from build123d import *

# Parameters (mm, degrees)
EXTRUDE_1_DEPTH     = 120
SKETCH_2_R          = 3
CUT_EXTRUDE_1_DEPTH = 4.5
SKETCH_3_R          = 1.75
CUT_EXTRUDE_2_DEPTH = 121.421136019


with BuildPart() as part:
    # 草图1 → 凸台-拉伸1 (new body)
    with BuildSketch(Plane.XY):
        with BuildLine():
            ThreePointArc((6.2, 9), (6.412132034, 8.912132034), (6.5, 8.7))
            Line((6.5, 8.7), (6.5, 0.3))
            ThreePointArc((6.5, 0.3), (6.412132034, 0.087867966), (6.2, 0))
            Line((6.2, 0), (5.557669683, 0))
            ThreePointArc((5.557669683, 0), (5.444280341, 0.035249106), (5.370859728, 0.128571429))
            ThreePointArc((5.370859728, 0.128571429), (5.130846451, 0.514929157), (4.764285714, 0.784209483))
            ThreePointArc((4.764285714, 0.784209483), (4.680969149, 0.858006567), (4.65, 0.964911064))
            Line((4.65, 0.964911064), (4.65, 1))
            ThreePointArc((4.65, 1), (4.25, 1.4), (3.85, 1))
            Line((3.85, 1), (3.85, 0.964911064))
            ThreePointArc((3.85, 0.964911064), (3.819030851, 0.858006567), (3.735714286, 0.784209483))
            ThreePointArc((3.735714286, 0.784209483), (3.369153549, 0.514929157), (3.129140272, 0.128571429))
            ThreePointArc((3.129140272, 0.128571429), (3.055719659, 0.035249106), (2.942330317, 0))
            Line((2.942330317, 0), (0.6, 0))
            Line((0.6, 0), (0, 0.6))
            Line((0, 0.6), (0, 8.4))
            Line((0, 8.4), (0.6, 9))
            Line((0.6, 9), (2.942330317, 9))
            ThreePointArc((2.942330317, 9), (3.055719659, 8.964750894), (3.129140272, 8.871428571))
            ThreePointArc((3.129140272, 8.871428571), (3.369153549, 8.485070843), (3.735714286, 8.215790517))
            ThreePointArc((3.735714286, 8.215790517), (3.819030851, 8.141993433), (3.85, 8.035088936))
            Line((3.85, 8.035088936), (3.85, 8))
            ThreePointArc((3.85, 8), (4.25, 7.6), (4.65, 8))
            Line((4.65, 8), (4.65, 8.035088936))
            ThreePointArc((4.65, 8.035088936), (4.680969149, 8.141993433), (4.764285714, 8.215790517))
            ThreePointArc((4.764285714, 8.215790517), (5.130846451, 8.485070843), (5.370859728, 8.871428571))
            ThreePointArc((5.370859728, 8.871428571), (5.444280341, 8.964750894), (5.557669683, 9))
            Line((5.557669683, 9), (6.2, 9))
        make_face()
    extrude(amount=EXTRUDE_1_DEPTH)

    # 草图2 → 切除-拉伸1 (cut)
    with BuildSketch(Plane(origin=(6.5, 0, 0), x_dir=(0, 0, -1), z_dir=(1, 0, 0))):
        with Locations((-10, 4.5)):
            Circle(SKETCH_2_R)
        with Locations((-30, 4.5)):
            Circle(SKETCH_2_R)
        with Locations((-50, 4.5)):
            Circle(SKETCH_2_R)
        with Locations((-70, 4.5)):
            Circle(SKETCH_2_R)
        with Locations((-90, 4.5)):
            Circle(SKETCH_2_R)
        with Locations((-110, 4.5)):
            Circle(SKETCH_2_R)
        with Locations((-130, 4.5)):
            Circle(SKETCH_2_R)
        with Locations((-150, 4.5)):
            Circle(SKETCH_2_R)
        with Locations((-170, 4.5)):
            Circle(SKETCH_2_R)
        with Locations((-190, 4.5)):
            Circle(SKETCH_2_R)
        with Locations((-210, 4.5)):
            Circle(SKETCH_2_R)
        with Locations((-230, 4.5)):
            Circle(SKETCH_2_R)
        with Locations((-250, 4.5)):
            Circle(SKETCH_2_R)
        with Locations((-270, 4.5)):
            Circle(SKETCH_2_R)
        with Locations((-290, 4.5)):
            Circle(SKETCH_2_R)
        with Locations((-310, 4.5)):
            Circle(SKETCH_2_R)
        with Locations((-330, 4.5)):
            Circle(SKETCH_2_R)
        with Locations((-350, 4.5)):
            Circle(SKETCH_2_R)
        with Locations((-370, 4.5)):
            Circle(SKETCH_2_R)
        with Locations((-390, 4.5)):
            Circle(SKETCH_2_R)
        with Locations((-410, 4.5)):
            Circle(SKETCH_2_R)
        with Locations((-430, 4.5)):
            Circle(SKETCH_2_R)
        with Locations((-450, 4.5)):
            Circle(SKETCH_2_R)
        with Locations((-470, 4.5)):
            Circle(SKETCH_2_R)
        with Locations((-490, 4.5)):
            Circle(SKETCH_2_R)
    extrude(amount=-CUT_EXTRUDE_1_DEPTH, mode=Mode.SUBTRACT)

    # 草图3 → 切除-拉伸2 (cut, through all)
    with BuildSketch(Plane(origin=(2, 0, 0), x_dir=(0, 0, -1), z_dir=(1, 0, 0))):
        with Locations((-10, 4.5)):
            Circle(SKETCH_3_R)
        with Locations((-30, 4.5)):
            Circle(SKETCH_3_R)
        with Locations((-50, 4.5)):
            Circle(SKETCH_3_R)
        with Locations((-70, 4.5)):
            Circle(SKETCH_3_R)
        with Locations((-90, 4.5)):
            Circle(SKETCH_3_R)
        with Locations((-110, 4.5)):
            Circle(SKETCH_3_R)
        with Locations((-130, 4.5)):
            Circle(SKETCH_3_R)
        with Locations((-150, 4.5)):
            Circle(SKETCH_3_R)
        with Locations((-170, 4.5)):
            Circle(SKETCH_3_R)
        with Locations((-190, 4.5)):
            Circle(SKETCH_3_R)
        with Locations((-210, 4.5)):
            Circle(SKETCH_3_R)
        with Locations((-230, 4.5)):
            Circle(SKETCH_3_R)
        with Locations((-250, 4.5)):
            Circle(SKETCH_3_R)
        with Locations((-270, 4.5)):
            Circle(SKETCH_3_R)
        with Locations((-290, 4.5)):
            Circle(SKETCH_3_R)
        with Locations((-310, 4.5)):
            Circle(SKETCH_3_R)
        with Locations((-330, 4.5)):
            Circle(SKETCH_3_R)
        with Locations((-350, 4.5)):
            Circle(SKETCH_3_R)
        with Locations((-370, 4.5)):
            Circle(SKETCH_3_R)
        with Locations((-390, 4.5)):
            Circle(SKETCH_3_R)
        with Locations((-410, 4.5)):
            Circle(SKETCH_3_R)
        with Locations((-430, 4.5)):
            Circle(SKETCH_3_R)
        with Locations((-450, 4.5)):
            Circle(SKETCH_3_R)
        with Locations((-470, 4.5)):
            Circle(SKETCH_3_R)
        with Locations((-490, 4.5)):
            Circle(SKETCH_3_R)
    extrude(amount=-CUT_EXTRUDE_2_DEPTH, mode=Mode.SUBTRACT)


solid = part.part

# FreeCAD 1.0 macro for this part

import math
import FreeCAD as App
import Part
import Sketcher
from FreeCAD import Vector

doc = App.newDocument("Part")
body = doc.addObject("PartDesign::Body", "Body")

sketch1 = body.newObject("Sketcher::SketchObject", "Sketch")
sketch1.AttachmentSupport = (doc.getObject("XY_Plane"), [""])
sketch1.MapMode = "FlatFace"
sketch1.addGeometry([
    Part.ArcOfCircle(Part.Circle(Vector(6.2, 8.7, 0), Vector(0, 0, 1), 0.3), math.radians(0), math.radians(90)),
    Part.LineSegment(Vector(6.2, 9, 0), Vector(5.558, 9, 0)),
    Part.ArcOfCircle(Part.Circle(Vector(5.558, 8.8, 0), Vector(0, 0, 1), 0.2), math.radians(90), math.radians(159)),
    Part.ArcOfCircle(Part.Circle(Vector(4.25, 9.3, 0), Vector(0, 0, 1), 1.2), math.radians(-65), math.radians(-21)),
    Part.ArcOfCircle(Part.Circle(Vector(4.85, 8.035, 0), Vector(0, 0, 1), 0.2), math.radians(115), math.radians(180)),
    Part.LineSegment(Vector(4.65, 8.035, 0), Vector(4.65, 8, 0)),
    Part.ArcOfCircle(Part.Circle(Vector(4.25, 8, 0), Vector(0, 0, 1), 0.4), math.radians(180), math.radians(360)),
    Part.LineSegment(Vector(3.85, 8, 0), Vector(3.85, 8.035, 0)),
    Part.ArcOfCircle(Part.Circle(Vector(3.65, 8.035, 0), Vector(0, 0, 1), 0.2), math.radians(0), math.radians(65)),
    Part.ArcOfCircle(Part.Circle(Vector(4.25, 9.3, 0), Vector(0, 0, 1), 1.2), math.radians(-159), math.radians(-115)),
    Part.ArcOfCircle(Part.Circle(Vector(2.942, 8.8, 0), Vector(0, 0, 1), 0.2), math.radians(21), math.radians(90)),
    Part.LineSegment(Vector(2.942, 9, 0), Vector(0.6, 9, 0)),
    Part.LineSegment(Vector(0.6, 9, 0), Vector(0, 8.4, 0)),
    Part.LineSegment(Vector(0, 8.4, 0), Vector(0, 0.6, 0)),
    Part.LineSegment(Vector(0, 0.6, 0), Vector(0.6, 0, 0)),
    Part.LineSegment(Vector(0.6, 0, 0), Vector(2.942, 0, 0)),
    Part.ArcOfCircle(Part.Circle(Vector(2.942, 0.2, 0), Vector(0, 0, 1), 0.2), math.radians(-90), math.radians(-21)),
    Part.ArcOfCircle(Part.Circle(Vector(4.25, -0.3, 0), Vector(0, 0, 1), 1.2), math.radians(115), math.radians(159)),
    Part.ArcOfCircle(Part.Circle(Vector(3.65, 0.965, 0), Vector(0, 0, 1), 0.2), math.radians(-65), math.radians(0)),
    Part.LineSegment(Vector(3.85, 0.965, 0), Vector(3.85, 1, 0)),
    Part.ArcOfCircle(Part.Circle(Vector(4.25, 1, 0), Vector(0, 0, 1), 0.4), math.radians(0), math.radians(180)),
    Part.LineSegment(Vector(4.65, 1, 0), Vector(4.65, 0.965, 0)),
    Part.ArcOfCircle(Part.Circle(Vector(4.85, 0.965, 0), Vector(0, 0, 1), 0.2), math.radians(180), math.radians(245)),
    Part.ArcOfCircle(Part.Circle(Vector(4.25, -0.3, 0), Vector(0, 0, 1), 1.2), math.radians(21), math.radians(65)),
    Part.ArcOfCircle(Part.Circle(Vector(5.558, 0.2, 0), Vector(0, 0, 1), 0.2), math.radians(-159), math.radians(-90)),
    Part.LineSegment(Vector(5.558, 0, 0), Vector(6.2, 0, 0)),
    Part.ArcOfCircle(Part.Circle(Vector(6.2, 0.3, 0), Vector(0, 0, 1), 0.3), math.radians(-90), math.radians(0)),
    Part.LineSegment(Vector(6.5, 0.3, 0), Vector(6.5, 8.7, 0)),
], False)
sketch1.addConstraint([
    Sketcher.Constraint("Tangent", 0, 2, 1, 1),
    Sketcher.Constraint("Tangent", 1, 2, 2, 1),
    Sketcher.Constraint("Tangent", 2, 2, 3, 2),
    Sketcher.Constraint("Tangent", 3, 1, 4, 1),
    Sketcher.Constraint("Tangent", 4, 2, 5, 1),
    Sketcher.Constraint("Tangent", 5, 2, 6, 2),
    Sketcher.Constraint("Tangent", 6, 1, 7, 1),
    Sketcher.Constraint("Tangent", 7, 2, 8, 1),
    Sketcher.Constraint("Tangent", 8, 2, 9, 2),
    Sketcher.Constraint("Tangent", 9, 1, 10, 1),
    Sketcher.Constraint("Tangent", 10, 2, 11, 1),
    Sketcher.Constraint("Coincident", 11, 2, 12, 1),
    Sketcher.Constraint("Coincident", 12, 2, 13, 1),
    Sketcher.Constraint("Coincident", 13, 2, 14, 1),
    Sketcher.Constraint("Coincident", 14, 2, 15, 1),
    Sketcher.Constraint("Tangent", 15, 2, 16, 1),
    Sketcher.Constraint("Tangent", 16, 2, 17, 2),
    Sketcher.Constraint("Tangent", 17, 1, 18, 1),
    Sketcher.Constraint("Tangent", 18, 2, 19, 1),
    Sketcher.Constraint("Tangent", 19, 2, 20, 2),
    Sketcher.Constraint("Tangent", 20, 1, 21, 1),
    Sketcher.Constraint("Tangent", 21, 2, 22, 1),
    Sketcher.Constraint("Tangent", 22, 2, 23, 2),
    Sketcher.Constraint("Tangent", 23, 1, 24, 1),
    Sketcher.Constraint("Tangent", 24, 2, 25, 1),
    Sketcher.Constraint("Tangent", 25, 2, 26, 1),
    Sketcher.Constraint("Tangent", 26, 2, 27, 1),
    Sketcher.Constraint("Tangent", 27, 2, 0, 1),
    Sketcher.Constraint("Horizontal", 1),
    Sketcher.Constraint("Vertical", 5),
    Sketcher.Constraint("Vertical", 7),
    Sketcher.Constraint("Horizontal", 11),
    Sketcher.Constraint("Vertical", 13),
    Sketcher.Constraint("Horizontal", 15),
    Sketcher.Constraint("Vertical", 19),
    Sketcher.Constraint("Vertical", 21),
    Sketcher.Constraint("Horizontal", 25),
    Sketcher.Constraint("Vertical", 27),
    Sketcher.Constraint("Coincident", 9, 3, 3, 3),
    Sketcher.Constraint("Coincident", 23, 3, 17, 3),
    Sketcher.Constraint("Equal", 2, 4),
    Sketcher.Constraint("Equal", 4, 8),
    Sketcher.Constraint("Equal", 3, 9),
    Sketcher.Constraint("Equal", 8, 10),
    Sketcher.Constraint("Equal", 10, 16),
    Sketcher.Constraint("Equal", 9, 17),
    Sketcher.Constraint("Equal", 16, 18),
    Sketcher.Constraint("Equal", 6, 20),
    Sketcher.Constraint("Equal", 18, 22),
    Sketcher.Constraint("Equal", 17, 23),
    Sketcher.Constraint("Equal", 22, 24),
    Sketcher.Constraint("Equal", 0, 26),
    Sketcher.Constraint("PointOnObject", 12, 2, -2),
    Sketcher.Constraint("PointOnObject", 14, 2, -1),
    Sketcher.Constraint("PointOnObject", 24, 2, -1),
    Sketcher.Constraint("Perpendicular", 12, 14),
    Sketcher.Constraint("Horizontal", 4, 3, 8, 3),
    Sketcher.Constraint("Horizontal", 2, 3, 10, 3),
    Sketcher.Constraint("Horizontal", 18, 3, 22, 3),
    Sketcher.Constraint("Vertical", 10, 3, 16, 3),
    Sketcher.Constraint("Vertical", 9, 3, 17, 3),
    Sketcher.Constraint("Vertical", 11, 2, 14, 2),
    Sketcher.Constraint("Equal", 7, 19),
    Sketcher.Constraint("Equal", 12, 14),
    Sketcher.Constraint("Radius", 0, 0.3),
    Sketcher.Constraint("Radius", 2, 0.2),
    Sketcher.Constraint("Radius", 3, 1.2),
    Sketcher.Constraint("Radius", 6, 0.4),
    Sketcher.Constraint("DistanceY", 13, 2, 13, 1, 7.8),
    Sketcher.Constraint("DistanceY", 27, 1, 27, 2, 8.4),
    Sketcher.Constraint("DistanceY", -1, 1, 6, 3, 8.0),
    Sketcher.Constraint("DistanceX", -1, 1, 0, 3, 6.2),
    Sketcher.Constraint("DistanceY", -1, 1, 3, 3, 9.3),
    Sketcher.Constraint("DistanceX", -1, 1, 3, 3, 4.25),
])
pad1 = body.newObject("PartDesign::Pad", "Pad")
pad1.Profile = sketch1
pad1.Length = 120

sketch2 = body.newObject("Sketcher::SketchObject", "Sketch001")
sketch2.AttachmentSupport = (doc.getObject("YZ_Plane"), [""])
sketch2.MapMode = "FlatFace"
sketch2.AttachmentOffset = App.Placement(Vector(0, 0, 6.5), App.Rotation())
sketch2.addGeometry([
    Part.Circle(Vector(4.5, 10, 0), Vector(0, 0, 1), 3),
    Part.Circle(Vector(4.5, 30, 0), Vector(0, 0, 1), 3),
    Part.Circle(Vector(4.5, 50, 0), Vector(0, 0, 1), 3),
    Part.Circle(Vector(4.5, 70, 0), Vector(0, 0, 1), 3),
    Part.Circle(Vector(4.5, 90, 0), Vector(0, 0, 1), 3),
    Part.Circle(Vector(4.5, 110, 0), Vector(0, 0, 1), 3),
    Part.Circle(Vector(4.5, 130, 0), Vector(0, 0, 1), 3),
    Part.Circle(Vector(4.5, 150, 0), Vector(0, 0, 1), 3),
    Part.Circle(Vector(4.5, 170, 0), Vector(0, 0, 1), 3),
    Part.Circle(Vector(4.5, 190, 0), Vector(0, 0, 1), 3),
    Part.Circle(Vector(4.5, 210, 0), Vector(0, 0, 1), 3),
    Part.Circle(Vector(4.5, 230, 0), Vector(0, 0, 1), 3),
    Part.Circle(Vector(4.5, 250, 0), Vector(0, 0, 1), 3),
    Part.Circle(Vector(4.5, 270, 0), Vector(0, 0, 1), 3),
    Part.Circle(Vector(4.5, 290, 0), Vector(0, 0, 1), 3),
    Part.Circle(Vector(4.5, 310, 0), Vector(0, 0, 1), 3),
    Part.Circle(Vector(4.5, 330, 0), Vector(0, 0, 1), 3),
    Part.Circle(Vector(4.5, 350, 0), Vector(0, 0, 1), 3),
    Part.Circle(Vector(4.5, 370, 0), Vector(0, 0, 1), 3),
    Part.Circle(Vector(4.5, 390, 0), Vector(0, 0, 1), 3),
    Part.Circle(Vector(4.5, 410, 0), Vector(0, 0, 1), 3),
    Part.Circle(Vector(4.5, 430, 0), Vector(0, 0, 1), 3),
    Part.Circle(Vector(4.5, 450, 0), Vector(0, 0, 1), 3),
    Part.Circle(Vector(4.5, 470, 0), Vector(0, 0, 1), 3),
    Part.Circle(Vector(4.5, 490, 0), Vector(0, 0, 1), 3),
], False)
sketch2.addConstraint([
    Sketcher.Constraint("Equal", 0, 1),
    Sketcher.Constraint("Equal", 1, 2),
    Sketcher.Constraint("Equal", 2, 3),
    Sketcher.Constraint("Equal", 3, 4),
    Sketcher.Constraint("Equal", 4, 5),
    Sketcher.Constraint("Equal", 5, 6),
    Sketcher.Constraint("Equal", 6, 7),
    Sketcher.Constraint("Equal", 7, 8),
    Sketcher.Constraint("Equal", 8, 9),
    Sketcher.Constraint("Equal", 9, 10),
    Sketcher.Constraint("Equal", 10, 11),
    Sketcher.Constraint("Equal", 11, 12),
    Sketcher.Constraint("Equal", 12, 13),
    Sketcher.Constraint("Equal", 13, 14),
    Sketcher.Constraint("Equal", 14, 15),
    Sketcher.Constraint("Equal", 15, 16),
    Sketcher.Constraint("Equal", 16, 17),
    Sketcher.Constraint("Equal", 17, 18),
    Sketcher.Constraint("Equal", 18, 19),
    Sketcher.Constraint("Equal", 19, 20),
    Sketcher.Constraint("Equal", 20, 21),
    Sketcher.Constraint("Equal", 21, 22),
    Sketcher.Constraint("Equal", 22, 23),
    Sketcher.Constraint("Equal", 23, 24),
    Sketcher.Constraint("Vertical", 0, 3, 1, 3),
    Sketcher.Constraint("Vertical", 1, 3, 2, 3),
    Sketcher.Constraint("Vertical", 2, 3, 3, 3),
    Sketcher.Constraint("Vertical", 3, 3, 4, 3),
    Sketcher.Constraint("Vertical", 4, 3, 5, 3),
    Sketcher.Constraint("Vertical", 5, 3, 6, 3),
    Sketcher.Constraint("Vertical", 6, 3, 7, 3),
    Sketcher.Constraint("Vertical", 7, 3, 8, 3),
    Sketcher.Constraint("Vertical", 8, 3, 9, 3),
    Sketcher.Constraint("Vertical", 9, 3, 10, 3),
    Sketcher.Constraint("Vertical", 10, 3, 11, 3),
    Sketcher.Constraint("Vertical", 11, 3, 12, 3),
    Sketcher.Constraint("Vertical", 12, 3, 13, 3),
    Sketcher.Constraint("Vertical", 13, 3, 14, 3),
    Sketcher.Constraint("Vertical", 14, 3, 15, 3),
    Sketcher.Constraint("Vertical", 15, 3, 16, 3),
    Sketcher.Constraint("Vertical", 16, 3, 17, 3),
    Sketcher.Constraint("Vertical", 17, 3, 18, 3),
    Sketcher.Constraint("Vertical", 18, 3, 19, 3),
    Sketcher.Constraint("Vertical", 19, 3, 20, 3),
    Sketcher.Constraint("Vertical", 20, 3, 21, 3),
    Sketcher.Constraint("Vertical", 21, 3, 22, 3),
    Sketcher.Constraint("Vertical", 22, 3, 23, 3),
    Sketcher.Constraint("Vertical", 23, 3, 24, 3),
    Sketcher.Constraint("Diameter", 0, 6.0),
    Sketcher.Constraint("DistanceY", -1, 1, 0, 3, 10.0),
    Sketcher.Constraint("DistanceY", -1, 1, 1, 3, 30.0),
    Sketcher.Constraint("DistanceY", -1, 1, 2, 3, 50.0),
    Sketcher.Constraint("DistanceY", -1, 1, 3, 3, 70.0),
    Sketcher.Constraint("DistanceY", -1, 1, 4, 3, 90.0),
    Sketcher.Constraint("DistanceY", -1, 1, 5, 3, 110.0),
    Sketcher.Constraint("DistanceY", -1, 1, 6, 3, 130.0),
    Sketcher.Constraint("DistanceY", -1, 1, 7, 3, 150.0),
    Sketcher.Constraint("DistanceY", -1, 1, 8, 3, 170.0),
    Sketcher.Constraint("DistanceY", -1, 1, 9, 3, 190.0),
    Sketcher.Constraint("DistanceY", -1, 1, 10, 3, 210.0),
    Sketcher.Constraint("DistanceY", -1, 1, 11, 3, 230.0),
    Sketcher.Constraint("DistanceY", -1, 1, 12, 3, 250.0),
    Sketcher.Constraint("DistanceY", -1, 1, 13, 3, 270.0),
    Sketcher.Constraint("DistanceY", -1, 1, 14, 3, 290.0),
    Sketcher.Constraint("DistanceY", -1, 1, 15, 3, 310.0),
    Sketcher.Constraint("DistanceY", -1, 1, 16, 3, 330.0),
    Sketcher.Constraint("DistanceY", -1, 1, 17, 3, 350.0),
    Sketcher.Constraint("DistanceY", -1, 1, 18, 3, 370.0),
    Sketcher.Constraint("DistanceY", -1, 1, 19, 3, 390.0),
    Sketcher.Constraint("DistanceY", -1, 1, 20, 3, 410.0),
    Sketcher.Constraint("DistanceY", -1, 1, 21, 3, 430.0),
    Sketcher.Constraint("DistanceY", -1, 1, 22, 3, 450.0),
    Sketcher.Constraint("DistanceY", -1, 1, 23, 3, 470.0),
    Sketcher.Constraint("DistanceY", -1, 1, 24, 3, 490.0),
    Sketcher.Constraint("DistanceX", -1, 1, 0, 3, 4.5),
])
pocket1 = body.newObject("PartDesign::Pocket", "Pocket")
pocket1.Profile = sketch2
pocket1.Length = 4.5

sketch3 = body.newObject("Sketcher::SketchObject", "Sketch002")
sketch3.AttachmentSupport = (doc.getObject("YZ_Plane"), [""])
sketch3.MapMode = "FlatFace"
sketch3.AttachmentOffset = App.Placement(Vector(0, 0, 2), App.Rotation())
sketch3.addGeometry([
    Part.Circle(Vector(4.5, 10, 0), Vector(0, 0, 1), 1.8),
    Part.Circle(Vector(4.5, 30, 0), Vector(0, 0, 1), 1.8),
    Part.Circle(Vector(4.5, 50, 0), Vector(0, 0, 1), 1.8),
    Part.Circle(Vector(4.5, 70, 0), Vector(0, 0, 1), 1.8),
    Part.Circle(Vector(4.5, 90, 0), Vector(0, 0, 1), 1.8),
    Part.Circle(Vector(4.5, 110, 0), Vector(0, 0, 1), 1.8),
    Part.Circle(Vector(4.5, 130, 0), Vector(0, 0, 1), 1.8),
    Part.Circle(Vector(4.5, 150, 0), Vector(0, 0, 1), 1.8),
    Part.Circle(Vector(4.5, 170, 0), Vector(0, 0, 1), 1.8),
    Part.Circle(Vector(4.5, 190, 0), Vector(0, 0, 1), 1.8),
    Part.Circle(Vector(4.5, 210, 0), Vector(0, 0, 1), 1.8),
    Part.Circle(Vector(4.5, 230, 0), Vector(0, 0, 1), 1.8),
    Part.Circle(Vector(4.5, 250, 0), Vector(0, 0, 1), 1.8),
    Part.Circle(Vector(4.5, 270, 0), Vector(0, 0, 1), 1.8),
    Part.Circle(Vector(4.5, 290, 0), Vector(0, 0, 1), 1.8),
    Part.Circle(Vector(4.5, 310, 0), Vector(0, 0, 1), 1.8),
    Part.Circle(Vector(4.5, 330, 0), Vector(0, 0, 1), 1.8),
    Part.Circle(Vector(4.5, 350, 0), Vector(0, 0, 1), 1.8),
    Part.Circle(Vector(4.5, 370, 0), Vector(0, 0, 1), 1.8),
    Part.Circle(Vector(4.5, 390, 0), Vector(0, 0, 1), 1.8),
    Part.Circle(Vector(4.5, 410, 0), Vector(0, 0, 1), 1.8),
    Part.Circle(Vector(4.5, 430, 0), Vector(0, 0, 1), 1.8),
    Part.Circle(Vector(4.5, 450, 0), Vector(0, 0, 1), 1.8),
    Part.Circle(Vector(4.5, 470, 0), Vector(0, 0, 1), 1.8),
    Part.Circle(Vector(4.5, 490, 0), Vector(0, 0, 1), 1.8),
], False)
sketch3.addConstraint([
    Sketcher.Constraint("Equal", 0, 1),
    Sketcher.Constraint("Equal", 1, 2),
    Sketcher.Constraint("Equal", 2, 3),
    Sketcher.Constraint("Equal", 3, 4),
    Sketcher.Constraint("Equal", 4, 5),
    Sketcher.Constraint("Equal", 5, 6),
    Sketcher.Constraint("Equal", 6, 7),
    Sketcher.Constraint("Equal", 7, 8),
    Sketcher.Constraint("Equal", 8, 9),
    Sketcher.Constraint("Equal", 9, 10),
    Sketcher.Constraint("Equal", 10, 11),
    Sketcher.Constraint("Equal", 11, 12),
    Sketcher.Constraint("Equal", 12, 13),
    Sketcher.Constraint("Equal", 13, 14),
    Sketcher.Constraint("Equal", 14, 15),
    Sketcher.Constraint("Equal", 15, 16),
    Sketcher.Constraint("Equal", 16, 17),
    Sketcher.Constraint("Equal", 17, 18),
    Sketcher.Constraint("Equal", 18, 19),
    Sketcher.Constraint("Equal", 19, 20),
    Sketcher.Constraint("Equal", 20, 21),
    Sketcher.Constraint("Equal", 21, 22),
    Sketcher.Constraint("Equal", 22, 23),
    Sketcher.Constraint("Equal", 23, 24),
    Sketcher.Constraint("Vertical", 0, 3, 1, 3),
    Sketcher.Constraint("Vertical", 1, 3, 2, 3),
    Sketcher.Constraint("Vertical", 2, 3, 3, 3),
    Sketcher.Constraint("Vertical", 3, 3, 4, 3),
    Sketcher.Constraint("Vertical", 4, 3, 5, 3),
    Sketcher.Constraint("Vertical", 5, 3, 6, 3),
    Sketcher.Constraint("Vertical", 6, 3, 7, 3),
    Sketcher.Constraint("Vertical", 7, 3, 8, 3),
    Sketcher.Constraint("Vertical", 8, 3, 9, 3),
    Sketcher.Constraint("Vertical", 9, 3, 10, 3),
    Sketcher.Constraint("Vertical", 10, 3, 11, 3),
    Sketcher.Constraint("Vertical", 11, 3, 12, 3),
    Sketcher.Constraint("Vertical", 12, 3, 13, 3),
    Sketcher.Constraint("Vertical", 13, 3, 14, 3),
    Sketcher.Constraint("Vertical", 14, 3, 15, 3),
    Sketcher.Constraint("Vertical", 15, 3, 16, 3),
    Sketcher.Constraint("Vertical", 16, 3, 17, 3),
    Sketcher.Constraint("Vertical", 17, 3, 18, 3),
    Sketcher.Constraint("Vertical", 18, 3, 19, 3),
    Sketcher.Constraint("Vertical", 19, 3, 20, 3),
    Sketcher.Constraint("Vertical", 20, 3, 21, 3),
    Sketcher.Constraint("Vertical", 21, 3, 22, 3),
    Sketcher.Constraint("Vertical", 22, 3, 23, 3),
    Sketcher.Constraint("Vertical", 23, 3, 24, 3),
    Sketcher.Constraint("Diameter", 0, 3.5),
    Sketcher.Constraint("DistanceY", -1, 1, 0, 3, 10.0),
    Sketcher.Constraint("DistanceY", -1, 1, 1, 3, 30.0),
    Sketcher.Constraint("DistanceY", -1, 1, 2, 3, 50.0),
    Sketcher.Constraint("DistanceY", -1, 1, 3, 3, 70.0),
    Sketcher.Constraint("DistanceY", -1, 1, 4, 3, 90.0),
    Sketcher.Constraint("DistanceY", -1, 1, 5, 3, 110.0),
    Sketcher.Constraint("DistanceY", -1, 1, 6, 3, 130.0),
    Sketcher.Constraint("DistanceY", -1, 1, 7, 3, 150.0),
    Sketcher.Constraint("DistanceY", -1, 1, 8, 3, 170.0),
    Sketcher.Constraint("DistanceY", -1, 1, 9, 3, 190.0),
    Sketcher.Constraint("DistanceY", -1, 1, 10, 3, 210.0),
    Sketcher.Constraint("DistanceY", -1, 1, 11, 3, 230.0),
    Sketcher.Constraint("DistanceY", -1, 1, 12, 3, 250.0),
    Sketcher.Constraint("DistanceY", -1, 1, 13, 3, 270.0),
    Sketcher.Constraint("DistanceY", -1, 1, 14, 3, 290.0),
    Sketcher.Constraint("DistanceY", -1, 1, 15, 3, 310.0),
    Sketcher.Constraint("DistanceY", -1, 1, 16, 3, 330.0),
    Sketcher.Constraint("DistanceY", -1, 1, 17, 3, 350.0),
    Sketcher.Constraint("DistanceY", -1, 1, 18, 3, 370.0),
    Sketcher.Constraint("DistanceY", -1, 1, 19, 3, 390.0),
    Sketcher.Constraint("DistanceY", -1, 1, 20, 3, 410.0),
    Sketcher.Constraint("DistanceY", -1, 1, 21, 3, 430.0),
    Sketcher.Constraint("DistanceY", -1, 1, 22, 3, 450.0),
    Sketcher.Constraint("DistanceY", -1, 1, 23, 3, 470.0),
    Sketcher.Constraint("DistanceY", -1, 1, 24, 3, 490.0),
    Sketcher.Constraint("DistanceX", -1, 1, 0, 3, 4.5),
])
pocket2 = body.newObject("PartDesign::Pocket", "Pocket001")
pocket2.Profile = sketch3
pocket2.Type = "ThroughAll"

doc.recompute()
